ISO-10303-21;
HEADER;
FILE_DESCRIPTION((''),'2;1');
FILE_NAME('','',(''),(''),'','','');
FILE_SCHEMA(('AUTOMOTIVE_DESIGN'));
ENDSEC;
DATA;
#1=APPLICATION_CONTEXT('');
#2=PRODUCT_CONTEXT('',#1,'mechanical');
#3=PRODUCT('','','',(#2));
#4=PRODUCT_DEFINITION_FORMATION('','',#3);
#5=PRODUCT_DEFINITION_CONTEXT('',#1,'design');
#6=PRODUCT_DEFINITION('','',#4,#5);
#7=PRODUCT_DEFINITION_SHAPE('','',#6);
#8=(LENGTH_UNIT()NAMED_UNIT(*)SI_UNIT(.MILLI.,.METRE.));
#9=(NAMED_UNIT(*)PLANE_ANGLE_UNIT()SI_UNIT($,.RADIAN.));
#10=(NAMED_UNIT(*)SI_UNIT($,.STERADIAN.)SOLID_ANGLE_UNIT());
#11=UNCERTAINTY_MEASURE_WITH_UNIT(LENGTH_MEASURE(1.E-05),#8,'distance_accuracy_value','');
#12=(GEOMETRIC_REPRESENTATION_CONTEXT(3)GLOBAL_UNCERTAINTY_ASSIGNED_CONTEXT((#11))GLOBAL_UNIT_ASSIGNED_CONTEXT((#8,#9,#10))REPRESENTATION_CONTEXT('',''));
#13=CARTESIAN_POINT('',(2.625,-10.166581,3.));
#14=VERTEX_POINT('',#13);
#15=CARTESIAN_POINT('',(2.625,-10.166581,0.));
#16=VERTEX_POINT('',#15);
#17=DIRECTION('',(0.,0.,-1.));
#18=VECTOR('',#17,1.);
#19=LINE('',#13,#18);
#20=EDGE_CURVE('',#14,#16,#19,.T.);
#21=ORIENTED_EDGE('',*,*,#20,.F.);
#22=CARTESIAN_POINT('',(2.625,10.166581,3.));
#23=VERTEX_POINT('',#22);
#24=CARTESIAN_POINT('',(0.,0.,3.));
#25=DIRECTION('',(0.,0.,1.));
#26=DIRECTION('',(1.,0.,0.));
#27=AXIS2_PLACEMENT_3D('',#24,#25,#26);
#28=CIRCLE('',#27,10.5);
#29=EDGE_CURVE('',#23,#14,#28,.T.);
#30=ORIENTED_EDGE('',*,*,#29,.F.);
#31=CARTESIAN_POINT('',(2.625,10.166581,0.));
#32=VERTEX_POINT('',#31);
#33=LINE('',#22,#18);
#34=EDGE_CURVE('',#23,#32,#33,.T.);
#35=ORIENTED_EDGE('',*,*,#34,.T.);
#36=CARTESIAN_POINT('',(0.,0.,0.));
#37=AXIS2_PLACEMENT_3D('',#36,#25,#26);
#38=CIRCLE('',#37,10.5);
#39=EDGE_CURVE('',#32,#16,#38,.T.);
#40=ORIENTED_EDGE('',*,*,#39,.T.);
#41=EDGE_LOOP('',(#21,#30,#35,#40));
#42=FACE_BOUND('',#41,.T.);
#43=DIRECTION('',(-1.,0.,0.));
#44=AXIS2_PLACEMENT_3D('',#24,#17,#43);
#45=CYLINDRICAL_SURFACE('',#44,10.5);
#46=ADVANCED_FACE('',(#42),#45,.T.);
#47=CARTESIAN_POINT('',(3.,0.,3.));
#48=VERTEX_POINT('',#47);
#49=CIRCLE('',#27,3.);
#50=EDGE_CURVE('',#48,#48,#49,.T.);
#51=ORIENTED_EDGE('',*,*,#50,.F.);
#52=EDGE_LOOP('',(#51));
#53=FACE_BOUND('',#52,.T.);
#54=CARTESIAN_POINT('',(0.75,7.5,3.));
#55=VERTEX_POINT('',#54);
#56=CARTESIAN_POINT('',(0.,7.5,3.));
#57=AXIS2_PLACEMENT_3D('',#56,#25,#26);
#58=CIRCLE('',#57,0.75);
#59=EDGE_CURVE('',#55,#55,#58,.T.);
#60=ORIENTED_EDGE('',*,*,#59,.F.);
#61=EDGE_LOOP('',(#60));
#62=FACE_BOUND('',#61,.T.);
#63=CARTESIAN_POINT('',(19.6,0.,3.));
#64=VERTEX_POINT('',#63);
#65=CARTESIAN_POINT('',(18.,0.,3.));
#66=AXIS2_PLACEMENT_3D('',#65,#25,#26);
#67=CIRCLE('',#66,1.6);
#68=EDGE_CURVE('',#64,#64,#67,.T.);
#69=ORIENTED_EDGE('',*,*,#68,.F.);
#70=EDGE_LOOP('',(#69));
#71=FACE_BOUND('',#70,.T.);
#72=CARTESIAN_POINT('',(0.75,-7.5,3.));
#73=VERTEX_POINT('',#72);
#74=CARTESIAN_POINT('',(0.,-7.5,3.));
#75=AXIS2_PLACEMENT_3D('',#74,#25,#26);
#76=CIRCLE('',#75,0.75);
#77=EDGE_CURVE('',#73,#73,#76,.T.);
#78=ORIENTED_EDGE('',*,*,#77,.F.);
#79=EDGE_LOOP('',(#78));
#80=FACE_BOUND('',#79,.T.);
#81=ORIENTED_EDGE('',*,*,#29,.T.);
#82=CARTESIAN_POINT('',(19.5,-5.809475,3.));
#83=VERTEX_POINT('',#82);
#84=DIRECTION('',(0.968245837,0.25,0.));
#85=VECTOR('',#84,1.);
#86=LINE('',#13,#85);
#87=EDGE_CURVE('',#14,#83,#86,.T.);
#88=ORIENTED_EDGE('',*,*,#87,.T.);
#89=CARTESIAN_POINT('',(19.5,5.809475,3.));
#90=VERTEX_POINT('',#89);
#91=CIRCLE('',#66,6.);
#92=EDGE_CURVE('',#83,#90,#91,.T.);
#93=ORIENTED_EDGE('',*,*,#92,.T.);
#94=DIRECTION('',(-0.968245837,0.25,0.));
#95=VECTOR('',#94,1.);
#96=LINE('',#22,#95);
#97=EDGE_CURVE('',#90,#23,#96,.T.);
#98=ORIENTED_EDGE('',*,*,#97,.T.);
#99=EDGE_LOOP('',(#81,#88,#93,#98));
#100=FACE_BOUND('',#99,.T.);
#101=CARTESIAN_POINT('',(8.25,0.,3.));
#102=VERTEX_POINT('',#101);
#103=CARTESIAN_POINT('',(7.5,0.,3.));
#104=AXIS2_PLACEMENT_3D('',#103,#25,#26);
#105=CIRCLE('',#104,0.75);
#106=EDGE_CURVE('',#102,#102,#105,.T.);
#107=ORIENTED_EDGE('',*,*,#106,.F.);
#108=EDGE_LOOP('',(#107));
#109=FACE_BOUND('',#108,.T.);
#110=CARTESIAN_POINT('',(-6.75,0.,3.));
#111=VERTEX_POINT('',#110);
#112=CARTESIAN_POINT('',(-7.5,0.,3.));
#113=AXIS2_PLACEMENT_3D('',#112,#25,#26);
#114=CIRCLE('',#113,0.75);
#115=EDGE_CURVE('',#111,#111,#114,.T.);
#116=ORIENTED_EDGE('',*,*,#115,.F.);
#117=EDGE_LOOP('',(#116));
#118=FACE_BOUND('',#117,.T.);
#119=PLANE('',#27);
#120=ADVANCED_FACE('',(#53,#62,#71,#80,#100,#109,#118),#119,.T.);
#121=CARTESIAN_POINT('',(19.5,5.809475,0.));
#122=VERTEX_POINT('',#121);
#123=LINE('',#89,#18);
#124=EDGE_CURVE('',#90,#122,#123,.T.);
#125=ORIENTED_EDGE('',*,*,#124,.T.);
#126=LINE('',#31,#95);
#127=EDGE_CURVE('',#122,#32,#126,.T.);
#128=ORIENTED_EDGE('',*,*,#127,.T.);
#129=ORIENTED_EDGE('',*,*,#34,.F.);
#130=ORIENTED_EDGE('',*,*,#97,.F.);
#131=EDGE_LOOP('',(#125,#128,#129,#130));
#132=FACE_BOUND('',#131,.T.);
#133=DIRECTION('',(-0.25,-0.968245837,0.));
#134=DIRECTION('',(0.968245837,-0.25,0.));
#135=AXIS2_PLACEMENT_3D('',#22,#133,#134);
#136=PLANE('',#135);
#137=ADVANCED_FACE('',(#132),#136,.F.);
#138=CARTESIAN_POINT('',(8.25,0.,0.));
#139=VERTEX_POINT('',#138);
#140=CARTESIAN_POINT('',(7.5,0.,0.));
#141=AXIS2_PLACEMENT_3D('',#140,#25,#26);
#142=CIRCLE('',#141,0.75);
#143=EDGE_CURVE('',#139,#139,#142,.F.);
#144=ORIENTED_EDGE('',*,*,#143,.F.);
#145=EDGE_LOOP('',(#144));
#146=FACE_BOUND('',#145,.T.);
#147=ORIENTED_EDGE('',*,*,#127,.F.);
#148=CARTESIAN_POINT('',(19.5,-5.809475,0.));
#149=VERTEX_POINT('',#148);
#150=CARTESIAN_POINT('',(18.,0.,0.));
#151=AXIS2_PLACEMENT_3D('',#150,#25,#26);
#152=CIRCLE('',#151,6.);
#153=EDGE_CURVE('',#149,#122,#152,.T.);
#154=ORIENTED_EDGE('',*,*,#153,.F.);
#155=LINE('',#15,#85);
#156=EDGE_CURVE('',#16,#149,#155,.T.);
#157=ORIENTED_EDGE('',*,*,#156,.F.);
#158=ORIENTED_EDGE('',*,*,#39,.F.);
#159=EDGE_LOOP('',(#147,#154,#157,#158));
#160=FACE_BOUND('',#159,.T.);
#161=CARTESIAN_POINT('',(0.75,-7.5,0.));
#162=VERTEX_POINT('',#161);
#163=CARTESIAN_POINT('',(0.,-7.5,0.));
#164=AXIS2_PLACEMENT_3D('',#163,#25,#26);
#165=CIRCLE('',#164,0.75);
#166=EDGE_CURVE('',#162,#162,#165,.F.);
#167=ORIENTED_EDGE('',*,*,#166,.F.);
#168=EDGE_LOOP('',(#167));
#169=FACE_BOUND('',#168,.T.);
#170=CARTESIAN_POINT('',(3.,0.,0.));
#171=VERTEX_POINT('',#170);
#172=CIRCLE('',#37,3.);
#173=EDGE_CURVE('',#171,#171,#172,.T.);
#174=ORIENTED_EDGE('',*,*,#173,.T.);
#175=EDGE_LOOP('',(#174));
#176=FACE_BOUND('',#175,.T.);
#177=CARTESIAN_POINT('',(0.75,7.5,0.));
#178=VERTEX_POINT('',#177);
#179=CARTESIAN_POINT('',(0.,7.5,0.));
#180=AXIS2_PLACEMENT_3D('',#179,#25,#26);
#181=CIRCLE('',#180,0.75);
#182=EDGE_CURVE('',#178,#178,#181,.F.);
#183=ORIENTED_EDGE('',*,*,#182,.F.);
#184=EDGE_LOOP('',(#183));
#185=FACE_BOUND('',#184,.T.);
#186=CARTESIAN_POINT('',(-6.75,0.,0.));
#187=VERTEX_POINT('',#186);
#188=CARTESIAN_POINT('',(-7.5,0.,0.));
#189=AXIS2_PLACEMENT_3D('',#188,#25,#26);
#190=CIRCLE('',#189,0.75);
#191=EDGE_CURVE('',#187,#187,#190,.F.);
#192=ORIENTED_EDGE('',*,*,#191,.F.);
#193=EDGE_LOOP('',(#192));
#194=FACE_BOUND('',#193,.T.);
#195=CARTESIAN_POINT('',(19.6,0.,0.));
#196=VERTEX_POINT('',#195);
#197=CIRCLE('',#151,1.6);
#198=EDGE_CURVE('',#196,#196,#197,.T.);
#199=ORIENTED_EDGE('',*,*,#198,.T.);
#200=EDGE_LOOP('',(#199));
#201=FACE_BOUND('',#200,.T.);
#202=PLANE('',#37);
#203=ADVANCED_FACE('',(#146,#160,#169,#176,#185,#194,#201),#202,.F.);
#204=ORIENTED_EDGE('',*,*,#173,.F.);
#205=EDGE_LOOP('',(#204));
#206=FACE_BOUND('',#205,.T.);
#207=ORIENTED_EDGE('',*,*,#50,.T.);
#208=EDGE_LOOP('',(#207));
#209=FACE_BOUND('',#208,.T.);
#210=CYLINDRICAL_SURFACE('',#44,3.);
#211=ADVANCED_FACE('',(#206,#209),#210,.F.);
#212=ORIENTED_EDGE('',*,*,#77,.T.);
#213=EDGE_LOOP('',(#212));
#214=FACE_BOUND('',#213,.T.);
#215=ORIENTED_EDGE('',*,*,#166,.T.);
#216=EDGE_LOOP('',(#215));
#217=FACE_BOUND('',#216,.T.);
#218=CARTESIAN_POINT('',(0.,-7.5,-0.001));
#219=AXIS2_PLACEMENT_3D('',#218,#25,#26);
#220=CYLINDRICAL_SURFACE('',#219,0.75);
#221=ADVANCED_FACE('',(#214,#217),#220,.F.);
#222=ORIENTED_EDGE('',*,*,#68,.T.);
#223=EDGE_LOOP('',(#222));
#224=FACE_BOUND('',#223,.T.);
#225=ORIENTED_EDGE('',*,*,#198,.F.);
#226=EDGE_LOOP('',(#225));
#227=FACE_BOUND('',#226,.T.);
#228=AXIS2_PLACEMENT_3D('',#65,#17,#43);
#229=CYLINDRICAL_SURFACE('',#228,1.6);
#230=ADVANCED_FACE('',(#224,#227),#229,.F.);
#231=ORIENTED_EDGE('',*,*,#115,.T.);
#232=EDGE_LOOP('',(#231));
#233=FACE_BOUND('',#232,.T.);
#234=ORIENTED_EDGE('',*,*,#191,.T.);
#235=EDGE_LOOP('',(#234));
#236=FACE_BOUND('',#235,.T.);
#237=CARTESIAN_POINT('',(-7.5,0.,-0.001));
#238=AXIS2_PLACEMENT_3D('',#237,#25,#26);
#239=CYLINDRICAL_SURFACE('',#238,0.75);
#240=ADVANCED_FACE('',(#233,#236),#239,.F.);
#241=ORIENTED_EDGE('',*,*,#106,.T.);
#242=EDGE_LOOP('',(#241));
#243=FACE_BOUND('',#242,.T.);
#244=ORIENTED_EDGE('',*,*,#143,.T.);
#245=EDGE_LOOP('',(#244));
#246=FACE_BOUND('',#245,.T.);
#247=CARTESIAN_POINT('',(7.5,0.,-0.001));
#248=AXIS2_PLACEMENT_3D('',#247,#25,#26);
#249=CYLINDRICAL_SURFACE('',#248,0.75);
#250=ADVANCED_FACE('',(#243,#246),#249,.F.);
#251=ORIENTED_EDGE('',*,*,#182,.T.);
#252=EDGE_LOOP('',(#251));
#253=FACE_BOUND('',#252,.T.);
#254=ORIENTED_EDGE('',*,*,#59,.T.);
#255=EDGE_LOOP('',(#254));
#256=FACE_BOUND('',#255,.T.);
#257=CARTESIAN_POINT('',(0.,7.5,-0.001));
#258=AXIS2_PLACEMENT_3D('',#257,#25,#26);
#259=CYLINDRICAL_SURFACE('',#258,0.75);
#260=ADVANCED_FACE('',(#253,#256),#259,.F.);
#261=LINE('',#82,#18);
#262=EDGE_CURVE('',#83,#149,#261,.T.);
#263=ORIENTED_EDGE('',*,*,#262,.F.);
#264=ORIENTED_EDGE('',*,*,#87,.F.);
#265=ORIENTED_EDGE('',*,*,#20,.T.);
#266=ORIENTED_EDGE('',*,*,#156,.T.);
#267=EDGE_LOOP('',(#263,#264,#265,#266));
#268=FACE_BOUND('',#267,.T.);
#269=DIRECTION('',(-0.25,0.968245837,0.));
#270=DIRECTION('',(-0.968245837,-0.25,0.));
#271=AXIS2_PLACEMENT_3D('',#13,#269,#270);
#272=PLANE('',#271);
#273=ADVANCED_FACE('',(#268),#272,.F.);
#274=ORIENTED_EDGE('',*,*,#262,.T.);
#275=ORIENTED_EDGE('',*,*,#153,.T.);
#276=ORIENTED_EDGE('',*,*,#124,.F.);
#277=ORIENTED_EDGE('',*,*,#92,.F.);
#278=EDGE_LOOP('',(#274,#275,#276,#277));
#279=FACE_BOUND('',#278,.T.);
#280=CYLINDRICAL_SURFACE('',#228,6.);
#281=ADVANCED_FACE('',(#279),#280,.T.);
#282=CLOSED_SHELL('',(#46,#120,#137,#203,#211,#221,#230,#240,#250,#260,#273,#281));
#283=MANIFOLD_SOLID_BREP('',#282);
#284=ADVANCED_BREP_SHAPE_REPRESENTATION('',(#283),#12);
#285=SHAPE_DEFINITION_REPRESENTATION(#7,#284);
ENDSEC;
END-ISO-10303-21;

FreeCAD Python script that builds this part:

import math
import FreeCAD as App
import Part
import Sketcher
Q = App.Units.Quantity

doc = App.newDocument("Part")
body = doc.addObject("PartDesign::Body", "Body")

sketch1 = doc.addObject("Sketcher::SketchObject", "Sketch")
body.addObject(sketch1)
sketch1.AttachmentSupport = (doc.XY_Plane, [""])
sketch1.MapMode = "FlatFace"
sketch1.addGeometry([
    Part.LineSegment(App.Vector(19.5, 5.809475, 0), App.Vector(2.625, 10.166581, 0)),
    Part.ArcOfCircle(Part.Circle(App.Vector(0, 0, 0), App.Vector(0, 0, 1), 10.5), math.radians(75.522488), math.radians(284.477512)),
    Part.LineSegment(App.Vector(2.625, -10.166581, 0), App.Vector(19.5, -5.809475, 0)),
    Part.ArcOfCircle(Part.Circle(App.Vector(18, 0, 0), App.Vector(0, 0, 1), 6), math.radians(-75.522488), math.radians(75.522488)),
    Part.Circle(App.Vector(18, 0, 0), App.Vector(0, 0, 1), 1.6),
    Part.Circle(App.Vector(0, 0, 0), App.Vector(0, 0, 1), 3),
], False)
sketch1.addConstraint([
    Sketcher.Constraint("Tangent", 0, 2, 1, 1),
    Sketcher.Constraint("Tangent", 1, 2, 2, 1),
    Sketcher.Constraint("Tangent", 2, 2, 3, 1),
    Sketcher.Constraint("Tangent", 3, 2, 0, 1),
    Sketcher.Constraint("Coincident", 1, 3, -1, 1),
    Sketcher.Constraint("Coincident", 5, 3, -1, 1),
    Sketcher.Constraint("Coincident", 4, 3, 3, 3),
    Sketcher.Constraint("PointOnObject", 3, 3, -1),
    Sketcher.Constraint("Diameter", 5, Q("6 mm")),
    Sketcher.Constraint("Radius", 3, Q("6 mm")),
    Sketcher.Constraint("Diameter", 4, Q("3.2 mm")),
    Sketcher.Constraint("Radius", 1, Q("10.5 mm")),
    Sketcher.Constraint("DistanceX", -1, 1, 3, 3, Q("18 mm")),
])
pad1 = doc.addObject("PartDesign::Pad", "Pad")
body.addObject(pad1)
pad1.Profile = sketch1
pad1.Length = 3

sketch2 = doc.addObject("Sketcher::SketchObject", "Sketch001")
body.addObject(sketch2)
sketch2.AttachmentSupport = (doc.XY_Plane, [""])
sketch2.MapMode = "FlatFace"
sketch2.AttachmentOffset = App.Placement(App.Vector(0, 0, 3), App.Rotation())
sketch2.addGeometry(Part.Circle(App.Vector(0, 7.5, 0), App.Vector(0, 0, 1), 0.75), False)
sketch2.addConstraint([
    Sketcher.Constraint("PointOnObject", 0, 3, -2),
    Sketcher.Constraint("Diameter", 0, Q("1.5 mm")),
    Sketcher.Constraint("DistanceY", -1, 1, 0, 3, Q("7.5 mm")),
])
pocket1 = doc.addObject("PartDesign::Pocket", "Pocket")
body.addObject(pocket1)
pocket1.Profile = sketch2
pocket1.Type = "UpToFirst"

sketch3 = doc.addObject("Sketcher::SketchObject", "Sketch002")
body.addObject(sketch3)
sketch3.AttachmentSupport = (doc.XY_Plane, [""])
sketch3.MapMode = "FlatFace"
sketch3.AttachmentOffset = App.Placement(App.Vector(0, 0, 3), App.Rotation())
sketch3.addGeometry(Part.Circle(App.Vector(7.5, 0, 0), App.Vector(0, 0, 1), 0.75), False)
sketch3.addConstraint([
    Sketcher.Constraint("PointOnObject", 0, 3, -1),
    Sketcher.Constraint("Diameter", 0, Q("1.5 mm")),
    Sketcher.Constraint("DistanceX", -1, 1, 0, 3, Q("7.5 mm")),
])
pocket2 = doc.addObject("PartDesign::Pocket", "Pocket001")
body.addObject(pocket2)
pocket2.Profile = sketch3
pocket2.Type = "UpToFirst"

sketch4 = doc.addObject("Sketcher::SketchObject", "Sketch003")
body.addObject(sketch4)
sketch4.AttachmentSupport = (doc.XY_Plane, [""])
sketch4.MapMode = "FlatFace"
sketch4.AttachmentOffset = App.Placement(App.Vector(0, 0, 3), App.Rotation())
sketch4.addGeometry(Part.Circle(App.Vector(0, -7.5, 0), App.Vector(0, 0, 1), 0.75), False)
sketch4.addConstraint([
    Sketcher.Constraint("PointOnObject", 0, 3, -2),
    Sketcher.Constraint("Diameter", 0, Q("1.5 mm")),
    Sketcher.Constraint("DistanceY", 0, 3, -1, 1, Q("7.5 mm")),
])
pocket3 = doc.addObject("PartDesign::Pocket", "Pocket002")
body.addObject(pocket3)
pocket3.Profile = sketch4
pocket3.Type = "UpToFirst"

sketch5 = doc.addObject("Sketcher::SketchObject", "Sketch004")
body.addObject(sketch5)
sketch5.AttachmentSupport = (doc.XY_Plane, [""])
sketch5.MapMode = "FlatFace"
sketch5.AttachmentOffset = App.Placement(App.Vector(0, 0, 3), App.Rotation())
sketch5.addGeometry(Part.Circle(App.Vector(-7.5, 0, 0), App.Vector(0, 0, 1), 0.75), False)
sketch5.addConstraint([
    Sketcher.Constraint("PointOnObject", 0, 3, -1),
    Sketcher.Constraint("Diameter", 0, Q("1.5 mm")),
    Sketcher.Constraint("DistanceX", 0, 3, -1, 1, Q("7.5 mm")),
])
pocket4 = doc.addObject("PartDesign::Pocket", "Pocket003")
body.addObject(pocket4)
pocket4.Profile = sketch5
pocket4.Type = "UpToFirst"

doc.recompute()
